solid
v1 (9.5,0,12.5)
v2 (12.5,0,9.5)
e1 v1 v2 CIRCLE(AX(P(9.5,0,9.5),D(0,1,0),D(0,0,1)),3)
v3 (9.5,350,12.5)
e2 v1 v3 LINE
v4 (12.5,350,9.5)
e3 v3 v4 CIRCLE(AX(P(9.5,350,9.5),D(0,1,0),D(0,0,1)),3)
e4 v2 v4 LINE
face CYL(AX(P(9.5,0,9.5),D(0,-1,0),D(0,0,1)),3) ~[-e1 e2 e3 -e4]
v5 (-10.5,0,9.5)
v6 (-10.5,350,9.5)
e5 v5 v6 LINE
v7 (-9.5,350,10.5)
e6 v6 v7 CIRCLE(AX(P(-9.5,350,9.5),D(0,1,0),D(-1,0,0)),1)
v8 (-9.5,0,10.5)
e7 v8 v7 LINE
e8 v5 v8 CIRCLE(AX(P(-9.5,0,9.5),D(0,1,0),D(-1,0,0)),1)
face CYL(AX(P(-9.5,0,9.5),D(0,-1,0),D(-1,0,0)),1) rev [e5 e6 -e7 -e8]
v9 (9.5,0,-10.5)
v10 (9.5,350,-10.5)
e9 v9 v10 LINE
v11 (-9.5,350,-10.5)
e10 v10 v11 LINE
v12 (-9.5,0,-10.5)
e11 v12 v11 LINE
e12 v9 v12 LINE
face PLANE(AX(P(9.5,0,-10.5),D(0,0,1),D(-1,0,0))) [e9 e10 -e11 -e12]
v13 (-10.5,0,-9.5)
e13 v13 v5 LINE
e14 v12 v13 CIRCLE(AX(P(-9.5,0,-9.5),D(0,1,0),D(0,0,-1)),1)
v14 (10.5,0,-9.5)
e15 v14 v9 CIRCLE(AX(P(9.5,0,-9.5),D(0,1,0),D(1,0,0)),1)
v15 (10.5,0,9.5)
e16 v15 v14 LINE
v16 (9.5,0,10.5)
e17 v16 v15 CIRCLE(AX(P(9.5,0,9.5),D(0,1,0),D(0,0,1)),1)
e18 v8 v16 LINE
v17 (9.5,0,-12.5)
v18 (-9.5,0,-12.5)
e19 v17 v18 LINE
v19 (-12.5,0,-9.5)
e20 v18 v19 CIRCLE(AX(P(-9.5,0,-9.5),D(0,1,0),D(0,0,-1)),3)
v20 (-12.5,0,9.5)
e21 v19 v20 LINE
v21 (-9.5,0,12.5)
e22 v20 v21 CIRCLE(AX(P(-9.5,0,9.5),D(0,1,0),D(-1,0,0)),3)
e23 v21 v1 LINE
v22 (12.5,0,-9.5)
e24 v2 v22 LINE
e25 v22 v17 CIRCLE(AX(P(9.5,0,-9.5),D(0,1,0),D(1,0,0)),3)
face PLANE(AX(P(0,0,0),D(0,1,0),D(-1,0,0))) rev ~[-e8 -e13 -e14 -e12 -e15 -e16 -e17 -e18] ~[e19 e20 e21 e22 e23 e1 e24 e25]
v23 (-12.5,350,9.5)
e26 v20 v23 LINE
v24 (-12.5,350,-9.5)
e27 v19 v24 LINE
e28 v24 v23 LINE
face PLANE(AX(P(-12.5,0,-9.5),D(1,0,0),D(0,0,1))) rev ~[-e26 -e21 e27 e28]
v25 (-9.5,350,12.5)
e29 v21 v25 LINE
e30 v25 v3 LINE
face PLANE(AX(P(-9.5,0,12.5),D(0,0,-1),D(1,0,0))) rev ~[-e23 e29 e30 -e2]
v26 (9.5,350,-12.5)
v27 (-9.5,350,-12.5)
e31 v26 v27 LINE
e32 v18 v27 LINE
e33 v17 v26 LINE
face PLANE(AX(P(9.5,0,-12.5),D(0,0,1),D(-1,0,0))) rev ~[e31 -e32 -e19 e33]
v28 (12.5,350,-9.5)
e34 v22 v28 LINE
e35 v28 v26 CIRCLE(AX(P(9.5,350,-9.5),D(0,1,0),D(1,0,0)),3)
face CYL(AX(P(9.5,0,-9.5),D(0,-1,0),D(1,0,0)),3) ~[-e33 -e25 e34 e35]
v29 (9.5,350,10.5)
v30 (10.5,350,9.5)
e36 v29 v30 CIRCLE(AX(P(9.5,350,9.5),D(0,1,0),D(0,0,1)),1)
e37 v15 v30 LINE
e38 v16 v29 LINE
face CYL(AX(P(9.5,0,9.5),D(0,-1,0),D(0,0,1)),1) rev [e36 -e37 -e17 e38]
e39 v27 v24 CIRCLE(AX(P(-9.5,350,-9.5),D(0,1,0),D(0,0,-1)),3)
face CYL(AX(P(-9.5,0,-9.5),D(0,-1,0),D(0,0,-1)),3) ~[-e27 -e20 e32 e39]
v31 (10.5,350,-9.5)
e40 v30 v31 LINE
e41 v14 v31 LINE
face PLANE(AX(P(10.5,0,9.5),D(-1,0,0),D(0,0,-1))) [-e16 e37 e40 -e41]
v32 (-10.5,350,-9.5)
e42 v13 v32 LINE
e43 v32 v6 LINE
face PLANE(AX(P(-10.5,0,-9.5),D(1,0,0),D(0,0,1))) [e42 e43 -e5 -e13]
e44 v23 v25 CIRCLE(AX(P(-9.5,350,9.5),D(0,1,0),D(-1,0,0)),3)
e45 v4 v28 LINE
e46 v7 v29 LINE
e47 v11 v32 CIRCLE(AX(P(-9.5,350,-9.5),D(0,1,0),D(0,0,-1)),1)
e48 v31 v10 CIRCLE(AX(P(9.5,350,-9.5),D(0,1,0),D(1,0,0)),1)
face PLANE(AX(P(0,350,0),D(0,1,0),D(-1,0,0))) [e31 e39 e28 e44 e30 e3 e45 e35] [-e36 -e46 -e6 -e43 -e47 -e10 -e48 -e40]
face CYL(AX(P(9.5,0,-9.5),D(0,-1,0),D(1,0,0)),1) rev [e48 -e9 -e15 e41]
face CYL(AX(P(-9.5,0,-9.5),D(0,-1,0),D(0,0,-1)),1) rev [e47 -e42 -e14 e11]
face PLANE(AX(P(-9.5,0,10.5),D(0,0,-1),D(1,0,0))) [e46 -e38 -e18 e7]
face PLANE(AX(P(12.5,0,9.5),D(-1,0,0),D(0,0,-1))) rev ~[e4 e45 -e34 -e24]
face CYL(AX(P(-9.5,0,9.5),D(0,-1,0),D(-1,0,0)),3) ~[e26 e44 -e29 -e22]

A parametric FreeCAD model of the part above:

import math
import FreeCAD as App
import Part
import Sketcher
from FreeCAD import Vector
Q = App.Units.Quantity

doc = App.newDocument("Part")
body = doc.addObject("PartDesign::Body", "Body")

# Sketch on XZ plane
sketch1 = doc.addObject("Sketcher::SketchObject", "Sketch")
body.addObject(sketch1)
sketch1.AttachmentSupport = (doc.XZ_Plane, [""])
sketch1.MapMode = "FlatFace"
sketch1.addGeometry([
    Part.ArcOfCircle(Part.Circle(Vector(9.5, -9.5, 0), Vector(0, 0, 1), 3), math.radians(-90), math.radians(0)),  # 0
    Part.LineSegment(Vector(9.5, -12.5, 0), Vector(-9.5, -12.5, 0)),  # 1
    Part.ArcOfCircle(Part.Circle(Vector(-9.5, -9.5, 0), Vector(0, 0, 1), 3), math.radians(180), math.radians(270)),  # 2
    Part.LineSegment(Vector(-12.5, -9.5, 0), Vector(-12.5, 9.5, 0)),  # 3
    Part.ArcOfCircle(Part.Circle(Vector(-9.5, 9.5, 0), Vector(0, 0, 1), 3), math.radians(90), math.radians(180)),  # 4
    Part.LineSegment(Vector(-9.5, 12.5, 0), Vector(9.5, 12.5, 0)),  # 5
    Part.ArcOfCircle(Part.Circle(Vector(9.5, 9.5, 0), Vector(0, 0, 1), 3), math.radians(0), math.radians(90)),  # 6
    Part.LineSegment(Vector(12.5, 9.5, 0), Vector(12.5, -9.5, 0)),  # 7
    Part.LineSegment(Vector(-10.5, 9.5, 0), Vector(-10.5, -9.5, 0)),  # 8
    Part.ArcOfCircle(Part.Circle(Vector(-9.5, -9.5, 0), Vector(0, 0, 1), 1), math.radians(180), math.radians(270)),  # 9
    Part.LineSegment(Vector(-9.5, -10.5, 0), Vector(9.5, -10.5, 0)),  # 10
    Part.ArcOfCircle(Part.Circle(Vector(9.5, -9.5, 0), Vector(0, 0, 1), 1), math.radians(-90), math.radians(0)),  # 11
    Part.LineSegment(Vector(10.5, -9.5, 0), Vector(10.5, 9.5, 0)),  # 12
    Part.ArcOfCircle(Part.Circle(Vector(9.5, 9.5, 0), Vector(0, 0, 1), 1), math.radians(0), math.radians(90)),  # 13
    Part.LineSegment(Vector(9.5, 10.5, 0), Vector(-9.5, 10.5, 0)),  # 14
    Part.ArcOfCircle(Part.Circle(Vector(-9.5, 9.5, 0), Vector(0, 0, 1), 1), math.radians(90), math.radians(180)),  # 15
], False)
sketch1.addConstraint([
    Sketcher.Constraint("Tangent", 0, 1, 1, 1),
    Sketcher.Constraint("Tangent", 1, 2, 2, 2),
    Sketcher.Constraint("Tangent", 2, 1, 3, 1),
    Sketcher.Constraint("Tangent", 3, 2, 4, 2),
    Sketcher.Constraint("Tangent", 4, 1, 5, 1),
    Sketcher.Constraint("Tangent", 5, 2, 6, 2),
    Sketcher.Constraint("Tangent", 6, 1, 7, 1),
    Sketcher.Constraint("Tangent", 7, 2, 0, 2),
    Sketcher.Constraint("Tangent", 8, 2, 9, 1),
    Sketcher.Constraint("Tangent", 9, 2, 10, 1),
    Sketcher.Constraint("Tangent", 10, 2, 11, 1),
    Sketcher.Constraint("Tangent", 11, 2, 12, 1),
    Sketcher.Constraint("Tangent", 12, 2, 13, 1),
    Sketcher.Constraint("Tangent", 13, 2, 14, 1),
    Sketcher.Constraint("Tangent", 14, 2, 15, 1),
    Sketcher.Constraint("Tangent", 15, 2, 8, 1),
    Sketcher.Constraint("Horizontal", 1),
    Sketcher.Constraint("Vertical", 3),
    Sketcher.Constraint("Horizontal", 5),
    Sketcher.Constraint("Vertical", 7),
    Sketcher.Constraint("Vertical", 8),
    Sketcher.Constraint("Horizontal", 10),
    Sketcher.Constraint("Vertical", 12),
    Sketcher.Constraint("Horizontal", 14),
    Sketcher.Constraint("Coincident", 9, 3, 2, 3),
    Sketcher.Constraint("Coincident", 11, 3, 0, 3),
    Sketcher.Constraint("Coincident", 13, 3, 6, 3),
    Sketcher.Constraint("Equal", 0, 2),
    Sketcher.Constraint("Equal", 2, 4),
    Sketcher.Constraint("Equal", 4, 6),
    Sketcher.Constraint("Equal", 13, 15),
    Sketcher.Constraint("Symmetric", 0, 3, 4, 3, -1, 1),
    Sketcher.Constraint("Equal", 14, 3),
    Sketcher.Constraint("Radius", 9, Q("1 mm")),
    Sketcher.Constraint("Radius", 0, Q("3 mm")),
    Sketcher.Constraint("DistanceX", 1, 2, 1, 1, Q("19 mm")),
])
pad1 = doc.addObject("PartDesign::Pad", "Pad")
body.addObject(pad1)
pad1.Profile = sketch1
pad1.Length = 350
pad1.Reversed = True

doc.recompute()
